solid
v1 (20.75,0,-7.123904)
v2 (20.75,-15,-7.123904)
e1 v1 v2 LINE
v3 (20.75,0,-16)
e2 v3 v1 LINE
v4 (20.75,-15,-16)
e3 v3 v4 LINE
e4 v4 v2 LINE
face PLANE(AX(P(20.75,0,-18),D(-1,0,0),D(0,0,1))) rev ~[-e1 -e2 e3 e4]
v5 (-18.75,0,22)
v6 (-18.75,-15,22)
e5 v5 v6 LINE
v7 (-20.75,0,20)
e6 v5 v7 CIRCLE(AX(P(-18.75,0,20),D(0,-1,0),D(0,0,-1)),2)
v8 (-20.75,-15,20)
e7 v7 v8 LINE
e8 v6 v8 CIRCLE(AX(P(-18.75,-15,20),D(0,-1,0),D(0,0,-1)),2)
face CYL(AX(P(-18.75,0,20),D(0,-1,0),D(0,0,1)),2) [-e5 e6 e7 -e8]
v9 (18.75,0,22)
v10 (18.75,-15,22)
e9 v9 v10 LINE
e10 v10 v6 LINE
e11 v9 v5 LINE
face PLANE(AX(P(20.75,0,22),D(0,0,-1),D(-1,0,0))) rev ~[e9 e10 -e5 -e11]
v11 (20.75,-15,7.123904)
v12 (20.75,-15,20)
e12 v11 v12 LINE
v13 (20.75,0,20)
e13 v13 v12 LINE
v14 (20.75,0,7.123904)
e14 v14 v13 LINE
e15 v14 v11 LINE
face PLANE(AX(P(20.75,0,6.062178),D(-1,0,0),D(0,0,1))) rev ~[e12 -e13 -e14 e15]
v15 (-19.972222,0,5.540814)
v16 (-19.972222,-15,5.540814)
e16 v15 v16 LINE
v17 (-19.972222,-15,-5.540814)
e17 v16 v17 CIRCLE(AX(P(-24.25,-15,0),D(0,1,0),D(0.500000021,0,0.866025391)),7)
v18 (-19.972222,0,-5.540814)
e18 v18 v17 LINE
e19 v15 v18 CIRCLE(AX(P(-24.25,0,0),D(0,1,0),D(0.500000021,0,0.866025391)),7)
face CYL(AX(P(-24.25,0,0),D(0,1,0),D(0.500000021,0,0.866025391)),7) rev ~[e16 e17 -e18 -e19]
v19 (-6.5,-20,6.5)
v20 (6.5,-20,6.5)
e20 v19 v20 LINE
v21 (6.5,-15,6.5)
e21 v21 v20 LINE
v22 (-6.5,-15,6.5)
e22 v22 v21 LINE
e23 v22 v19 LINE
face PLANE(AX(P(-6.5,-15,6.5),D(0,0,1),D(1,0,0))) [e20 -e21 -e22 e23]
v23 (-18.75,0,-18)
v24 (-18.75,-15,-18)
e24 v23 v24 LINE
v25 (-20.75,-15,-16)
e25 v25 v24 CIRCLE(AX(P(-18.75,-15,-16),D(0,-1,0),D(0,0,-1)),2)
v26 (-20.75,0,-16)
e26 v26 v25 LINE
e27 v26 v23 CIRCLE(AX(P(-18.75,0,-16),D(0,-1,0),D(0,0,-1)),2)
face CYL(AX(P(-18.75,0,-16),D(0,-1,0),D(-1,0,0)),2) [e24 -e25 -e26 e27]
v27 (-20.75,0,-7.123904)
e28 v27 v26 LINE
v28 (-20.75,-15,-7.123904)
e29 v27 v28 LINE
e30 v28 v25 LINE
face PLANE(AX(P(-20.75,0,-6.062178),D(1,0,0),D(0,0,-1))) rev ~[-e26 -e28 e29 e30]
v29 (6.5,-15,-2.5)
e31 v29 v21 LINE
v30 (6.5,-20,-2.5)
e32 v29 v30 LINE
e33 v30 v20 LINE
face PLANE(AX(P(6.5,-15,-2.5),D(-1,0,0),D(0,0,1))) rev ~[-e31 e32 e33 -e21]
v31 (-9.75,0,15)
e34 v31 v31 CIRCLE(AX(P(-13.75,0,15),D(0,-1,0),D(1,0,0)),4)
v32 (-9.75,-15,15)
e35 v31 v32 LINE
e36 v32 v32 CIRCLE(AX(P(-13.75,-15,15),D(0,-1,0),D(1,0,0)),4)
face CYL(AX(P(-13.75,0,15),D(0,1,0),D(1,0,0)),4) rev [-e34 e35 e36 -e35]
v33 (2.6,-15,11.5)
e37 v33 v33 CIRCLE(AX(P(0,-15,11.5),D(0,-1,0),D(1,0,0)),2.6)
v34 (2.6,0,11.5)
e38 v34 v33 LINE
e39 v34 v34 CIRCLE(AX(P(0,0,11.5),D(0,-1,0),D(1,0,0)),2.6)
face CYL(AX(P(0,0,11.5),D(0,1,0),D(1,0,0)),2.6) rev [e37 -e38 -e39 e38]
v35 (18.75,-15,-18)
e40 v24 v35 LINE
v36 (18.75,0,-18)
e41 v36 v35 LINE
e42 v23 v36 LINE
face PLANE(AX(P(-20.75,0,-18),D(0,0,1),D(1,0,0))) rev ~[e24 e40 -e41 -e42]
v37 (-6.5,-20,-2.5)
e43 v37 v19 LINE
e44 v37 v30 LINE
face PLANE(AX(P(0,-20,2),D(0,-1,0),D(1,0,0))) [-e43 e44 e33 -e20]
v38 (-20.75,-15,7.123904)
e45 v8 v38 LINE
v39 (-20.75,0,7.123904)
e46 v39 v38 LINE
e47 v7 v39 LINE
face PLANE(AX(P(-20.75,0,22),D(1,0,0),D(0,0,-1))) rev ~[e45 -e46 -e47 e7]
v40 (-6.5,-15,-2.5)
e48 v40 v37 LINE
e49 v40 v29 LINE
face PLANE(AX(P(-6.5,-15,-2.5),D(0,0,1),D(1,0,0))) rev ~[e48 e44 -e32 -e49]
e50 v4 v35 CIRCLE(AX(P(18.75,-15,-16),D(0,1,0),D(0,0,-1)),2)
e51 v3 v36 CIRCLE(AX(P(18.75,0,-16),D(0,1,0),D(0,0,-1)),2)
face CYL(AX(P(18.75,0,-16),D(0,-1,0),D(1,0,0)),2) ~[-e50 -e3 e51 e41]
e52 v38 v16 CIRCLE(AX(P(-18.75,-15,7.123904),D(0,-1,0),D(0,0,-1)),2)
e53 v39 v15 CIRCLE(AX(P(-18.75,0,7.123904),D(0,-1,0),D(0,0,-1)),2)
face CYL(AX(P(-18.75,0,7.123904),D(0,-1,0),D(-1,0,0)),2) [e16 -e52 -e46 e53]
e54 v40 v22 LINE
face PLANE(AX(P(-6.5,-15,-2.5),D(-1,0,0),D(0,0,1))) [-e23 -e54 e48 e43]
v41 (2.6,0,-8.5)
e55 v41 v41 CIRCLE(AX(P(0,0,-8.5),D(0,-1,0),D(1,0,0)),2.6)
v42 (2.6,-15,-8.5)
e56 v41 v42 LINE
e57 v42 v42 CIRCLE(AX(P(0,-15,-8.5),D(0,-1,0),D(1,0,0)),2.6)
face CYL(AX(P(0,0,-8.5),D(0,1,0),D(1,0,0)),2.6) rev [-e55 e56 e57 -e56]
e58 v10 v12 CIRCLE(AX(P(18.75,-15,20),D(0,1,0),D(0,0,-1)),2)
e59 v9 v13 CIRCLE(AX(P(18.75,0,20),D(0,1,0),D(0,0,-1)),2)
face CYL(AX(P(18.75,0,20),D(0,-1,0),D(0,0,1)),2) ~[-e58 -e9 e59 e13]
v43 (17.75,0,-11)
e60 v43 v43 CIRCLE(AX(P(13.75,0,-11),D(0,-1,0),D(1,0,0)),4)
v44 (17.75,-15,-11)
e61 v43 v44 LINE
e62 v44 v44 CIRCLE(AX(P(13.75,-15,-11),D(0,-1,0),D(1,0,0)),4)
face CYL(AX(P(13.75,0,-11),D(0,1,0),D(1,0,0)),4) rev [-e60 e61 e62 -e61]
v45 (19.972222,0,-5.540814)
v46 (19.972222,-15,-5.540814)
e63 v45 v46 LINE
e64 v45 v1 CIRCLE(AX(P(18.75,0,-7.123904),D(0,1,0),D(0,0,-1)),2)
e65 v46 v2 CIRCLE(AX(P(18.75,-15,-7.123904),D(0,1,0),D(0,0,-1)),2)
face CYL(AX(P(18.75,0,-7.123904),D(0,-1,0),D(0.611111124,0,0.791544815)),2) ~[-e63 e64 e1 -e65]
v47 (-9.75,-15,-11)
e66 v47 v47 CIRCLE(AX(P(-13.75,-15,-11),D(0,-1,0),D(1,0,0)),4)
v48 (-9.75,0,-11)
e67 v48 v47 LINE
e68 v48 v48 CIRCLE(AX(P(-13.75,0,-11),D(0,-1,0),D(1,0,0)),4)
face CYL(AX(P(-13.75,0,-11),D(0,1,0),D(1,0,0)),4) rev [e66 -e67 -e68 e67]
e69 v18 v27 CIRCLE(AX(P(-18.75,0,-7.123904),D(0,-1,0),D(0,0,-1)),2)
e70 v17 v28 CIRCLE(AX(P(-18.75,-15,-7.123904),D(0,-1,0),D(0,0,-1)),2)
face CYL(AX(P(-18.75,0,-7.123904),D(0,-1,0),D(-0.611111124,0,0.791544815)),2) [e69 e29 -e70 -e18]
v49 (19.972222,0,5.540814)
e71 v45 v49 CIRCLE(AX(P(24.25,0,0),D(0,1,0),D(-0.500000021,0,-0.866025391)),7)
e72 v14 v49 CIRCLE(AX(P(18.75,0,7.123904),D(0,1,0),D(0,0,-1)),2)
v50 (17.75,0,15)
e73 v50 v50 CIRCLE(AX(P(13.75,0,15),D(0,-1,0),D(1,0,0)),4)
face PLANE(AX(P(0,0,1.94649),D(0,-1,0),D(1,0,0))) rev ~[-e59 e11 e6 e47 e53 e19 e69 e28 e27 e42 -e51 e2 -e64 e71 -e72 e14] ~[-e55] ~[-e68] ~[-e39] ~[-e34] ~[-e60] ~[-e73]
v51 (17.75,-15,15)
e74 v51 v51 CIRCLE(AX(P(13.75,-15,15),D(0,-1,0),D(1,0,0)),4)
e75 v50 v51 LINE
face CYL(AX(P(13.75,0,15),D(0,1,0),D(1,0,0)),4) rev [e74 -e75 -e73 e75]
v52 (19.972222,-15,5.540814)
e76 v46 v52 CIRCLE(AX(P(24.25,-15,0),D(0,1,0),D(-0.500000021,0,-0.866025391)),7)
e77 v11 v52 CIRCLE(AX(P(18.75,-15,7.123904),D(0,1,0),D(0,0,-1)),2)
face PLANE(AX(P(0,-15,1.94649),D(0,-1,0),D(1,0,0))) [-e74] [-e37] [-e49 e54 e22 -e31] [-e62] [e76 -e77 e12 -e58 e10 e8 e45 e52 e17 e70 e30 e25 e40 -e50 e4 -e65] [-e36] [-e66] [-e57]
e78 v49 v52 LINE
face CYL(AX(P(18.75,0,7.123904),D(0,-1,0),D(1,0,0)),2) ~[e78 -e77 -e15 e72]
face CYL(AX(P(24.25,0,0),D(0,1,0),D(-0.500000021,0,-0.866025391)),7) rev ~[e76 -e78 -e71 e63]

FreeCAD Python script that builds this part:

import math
import FreeCAD as App
import Part
import Sketcher
from FreeCAD import Vector


def edges_at(feature, points):
    """Names of the edges that pass closest to the given points."""
    edges = feature.Shape.Edges
    near = lambda p: min(range(len(edges)), key=lambda i: edges[i].distToShape(Part.Vertex(*p))[0])
    return sorted({f"Edge{near(p) + 1}" for p in points})


def add_polygon(sketch, points):
    """Adds a closed chain of lines whose ends are joined by coincident constraints."""
    first, n = sketch.GeometryCount, len(points)
    for a, b in zip(points, points[1:] + points[:1]):
        sketch.addGeometry(Part.LineSegment(App.Vector(*a, 0), App.Vector(*b, 0)), False)
    for i in range(n):
        sketch.addConstraint(Sketcher.Constraint("Coincident", first + i, 2, first + (i + 1) % n, 1))

doc = App.newDocument("Part")
params = doc.addObject("Spreadsheet::Sheet", "Params")
for row, (alias, value) in enumerate([
    ("sketch1_diameter", "8 mm"),
    ("sketch1_radius", "7 mm"),
    ("sketch1_diameter2", "5.2 mm"),
    ("sketch1_width", "41.5 mm"),
    ("pad1_length", "15 mm"),
    ("fillet_radius", "2 mm"),
    ("sketch2_width", "13 mm"),
    ("sketch2_height", "9 mm"),
    ("pad2_length", "5 mm"),
], start=1):
    params.set(f"A{row}", alias)
    params.set(f"B{row}", "=" + value)
    params.setAlias(f"B{row}", alias)

body = doc.addObject("PartDesign::Body", "Body")

sketch1 = doc.addObject("Sketcher::SketchObject", "Sketch")
body.addObject(sketch1)
sketch1.AttachmentSupport = (doc.XZ_Plane, [""])
sketch1.MapMode = "FlatFace"
sketch1.addGeometry([
    Part.LineSegment(Vector(20.8, 22, 0), Vector(-20.8, 22, 0)),
    Part.LineSegment(Vector(-20.8, 22, 0), Vector(-20.8, 6.1, 0)),
    Part.ArcOfCircle(Part.Circle(Vector(-24.3, 0, 0), Vector(0, 0, 1), 7), math.radians(-60), math.radians(60)),
    Part.LineSegment(Vector(-20.8, -6.1, 0), Vector(-20.8, -18, 0)),
    Part.LineSegment(Vector(-20.8, -18, 0), Vector(20.8, -18, 0)),
    Part.LineSegment(Vector(20.8, -18, 0), Vector(20.8, -6.1, 0)),
    Part.ArcOfCircle(Part.Circle(Vector(24.3, 0, 0), Vector(0, 0, 1), 7), math.radians(120), math.radians(240)),
    Part.LineSegment(Vector(20.8, 6.1, 0), Vector(20.8, 22, 0)),
    Part.Circle(Vector(-13.8, -11, 0), Vector(0, 0, 1), 4),
    Part.Circle(Vector(0, -8.5, 0), Vector(0, 0, 1), 2.6),
    Part.Circle(Vector(13.8, -11, 0), Vector(0, 0, 1), 4),
    Part.Circle(Vector(-13.8, 15, 0), Vector(0, 0, 1), 4),
    Part.Circle(Vector(0, 11.5, 0), Vector(0, 0, 1), 2.6),
    Part.Circle(Vector(13.8, 15, 0), Vector(0, 0, 1), 4),
], False)
sketch1.addConstraint([
    Sketcher.Constraint("Coincident", 0, 2, 1, 1),
    Sketcher.Constraint("Coincident", 1, 2, 2, 2),
    Sketcher.Constraint("Coincident", 2, 1, 3, 1),
    Sketcher.Constraint("Coincident", 3, 2, 4, 1),
    Sketcher.Constraint("Coincident", 4, 2, 5, 1),
    Sketcher.Constraint("Coincident", 5, 2, 6, 2),
    Sketcher.Constraint("Coincident", 6, 1, 7, 1),
    Sketcher.Constraint("Coincident", 7, 2, 0, 1),
    Sketcher.Constraint("Horizontal", 0),
    Sketcher.Constraint("Vertical", 1),
    Sketcher.Constraint("Vertical", 3),
    Sketcher.Constraint("Horizontal", 4),
    Sketcher.Constraint("Vertical", 5),
    Sketcher.Constraint("Vertical", 7),
    Sketcher.Constraint("Equal", 2, 6),
    Sketcher.Constraint("Equal", 8, 10),
    Sketcher.Constraint("Equal", 10, 11),
    Sketcher.Constraint("Equal", 9, 12),
    Sketcher.Constraint("Equal", 11, 13),
    Sketcher.Constraint("Symmetric", 2, 3, 6, 3, -1, 1),
    Sketcher.Constraint("Symmetric", 8, 3, 10, 3, -2),
    Sketcher.Constraint("Symmetric", 11, 3, 13, 3, -2),
    Sketcher.Constraint("Symmetric", 2, 1, 5, 2, -2),
    Sketcher.Constraint("PointOnObject", 9, 3, -2),
    Sketcher.Constraint("PointOnObject", 12, 3, -2),
    Sketcher.Constraint("Horizontal", 1, 2, 6, 1),
    Sketcher.Constraint("Vertical", 8, 3, 11, 3),
    Sketcher.Constraint("Vertical", 1, 2, 2, 1),
    Sketcher.Constraint("Diameter", 8, 8.0),
    Sketcher.Constraint("Radius", 2, 7.0),
    Sketcher.Constraint("Diameter", 9, 5.2),
    Sketcher.Constraint("DistanceX", 0, 2, 0, 1, 41.5),
    Sketcher.Constraint("DistanceY", 8, 3, -1, 1, 11.0),
    Sketcher.Constraint("DistanceY", -1, 1, 11, 3, 15.0),
    Sketcher.Constraint("DistanceY", -1, 1, 0, 2, 22.0),
    Sketcher.Constraint("DistanceY", 3, 2, -1, 1, 18.0),
    Sketcher.Constraint("DistanceX", 8, 3, 6, 3, 38.0),
    Sketcher.Constraint("DistanceY", 9, 3, 12, 3, 20.0),
    Sketcher.Constraint("DistanceX", 0, 2, 11, 3, 7.0),
    Sketcher.Constraint("DistanceY", 9, 3, -1, 1, 8.5),
])
sketch1.setExpression("Constraints[28]", "Params.sketch1_diameter")
sketch1.setExpression("Constraints[29]", "Params.sketch1_radius")
sketch1.setExpression("Constraints[30]", "Params.sketch1_diameter2")
sketch1.setExpression("Constraints[31]", "Params.sketch1_width")
pad1 = doc.addObject("PartDesign::Pad", "Pad")
body.addObject(pad1)
pad1.Profile = sketch1
pad1.setExpression("Length", "Params.pad1_length")
doc.recompute()

fillet = doc.addObject("PartDesign::Fillet", "Fillet")
body.addObject(fillet)
fillet.Base = (pad1, edges_at(pad1, [
    (-20.75, -7.5, 22),
    (20.75, -7.5, 22),
    (-20.75, -7.5, -18),
    (20.75, -7.5, -18),
    (20.75, -7.5, 6.062),
    (20.75, -7.5, -6.062),
    (-20.75, -7.5, 6.062),
    (-20.75, -7.5, -6.062),
]))
fillet.setExpression("Radius", "Params.fillet_radius")

sketch2 = doc.addObject("Sketcher::SketchObject", "Sketch001")
body.addObject(sketch2)
sketch2.AttachmentSupport = (doc.XZ_Plane, [""])
sketch2.MapMode = "FlatFace"
sketch2.AttachmentOffset = App.Placement(Vector(0, 0, 15), App.Rotation())
add_polygon(sketch2, [(-6, 6), (-6, -2), (6, -2), (6, 6)])
sketch2.addConstraint([
    Sketcher.Constraint("Vertical", 0),
    Sketcher.Constraint("Horizontal", 1),
    Sketcher.Constraint("Vertical", 2),
    Sketcher.Constraint("Horizontal", 3),
    Sketcher.Constraint("DistanceX", 1, 1, 1, 2, 13.0),
    Sketcher.Constraint("DistanceY", 0, 2, 0, 1, 9.0),
    Sketcher.Constraint("DistanceX", 0, 2, -1, 1, 6.5),
    Sketcher.Constraint("DistanceY", 0, 2, -1, 1, 2.5),
])
sketch2.setExpression("Constraints[8]", "Params.sketch2_width")
sketch2.setExpression("Constraints[9]", "Params.sketch2_height")
pad2 = doc.addObject("PartDesign::Pad", "Pad001")
body.addObject(pad2)
pad2.Profile = sketch2
pad2.setExpression("Length", "Params.pad2_length")

doc.recompute()
